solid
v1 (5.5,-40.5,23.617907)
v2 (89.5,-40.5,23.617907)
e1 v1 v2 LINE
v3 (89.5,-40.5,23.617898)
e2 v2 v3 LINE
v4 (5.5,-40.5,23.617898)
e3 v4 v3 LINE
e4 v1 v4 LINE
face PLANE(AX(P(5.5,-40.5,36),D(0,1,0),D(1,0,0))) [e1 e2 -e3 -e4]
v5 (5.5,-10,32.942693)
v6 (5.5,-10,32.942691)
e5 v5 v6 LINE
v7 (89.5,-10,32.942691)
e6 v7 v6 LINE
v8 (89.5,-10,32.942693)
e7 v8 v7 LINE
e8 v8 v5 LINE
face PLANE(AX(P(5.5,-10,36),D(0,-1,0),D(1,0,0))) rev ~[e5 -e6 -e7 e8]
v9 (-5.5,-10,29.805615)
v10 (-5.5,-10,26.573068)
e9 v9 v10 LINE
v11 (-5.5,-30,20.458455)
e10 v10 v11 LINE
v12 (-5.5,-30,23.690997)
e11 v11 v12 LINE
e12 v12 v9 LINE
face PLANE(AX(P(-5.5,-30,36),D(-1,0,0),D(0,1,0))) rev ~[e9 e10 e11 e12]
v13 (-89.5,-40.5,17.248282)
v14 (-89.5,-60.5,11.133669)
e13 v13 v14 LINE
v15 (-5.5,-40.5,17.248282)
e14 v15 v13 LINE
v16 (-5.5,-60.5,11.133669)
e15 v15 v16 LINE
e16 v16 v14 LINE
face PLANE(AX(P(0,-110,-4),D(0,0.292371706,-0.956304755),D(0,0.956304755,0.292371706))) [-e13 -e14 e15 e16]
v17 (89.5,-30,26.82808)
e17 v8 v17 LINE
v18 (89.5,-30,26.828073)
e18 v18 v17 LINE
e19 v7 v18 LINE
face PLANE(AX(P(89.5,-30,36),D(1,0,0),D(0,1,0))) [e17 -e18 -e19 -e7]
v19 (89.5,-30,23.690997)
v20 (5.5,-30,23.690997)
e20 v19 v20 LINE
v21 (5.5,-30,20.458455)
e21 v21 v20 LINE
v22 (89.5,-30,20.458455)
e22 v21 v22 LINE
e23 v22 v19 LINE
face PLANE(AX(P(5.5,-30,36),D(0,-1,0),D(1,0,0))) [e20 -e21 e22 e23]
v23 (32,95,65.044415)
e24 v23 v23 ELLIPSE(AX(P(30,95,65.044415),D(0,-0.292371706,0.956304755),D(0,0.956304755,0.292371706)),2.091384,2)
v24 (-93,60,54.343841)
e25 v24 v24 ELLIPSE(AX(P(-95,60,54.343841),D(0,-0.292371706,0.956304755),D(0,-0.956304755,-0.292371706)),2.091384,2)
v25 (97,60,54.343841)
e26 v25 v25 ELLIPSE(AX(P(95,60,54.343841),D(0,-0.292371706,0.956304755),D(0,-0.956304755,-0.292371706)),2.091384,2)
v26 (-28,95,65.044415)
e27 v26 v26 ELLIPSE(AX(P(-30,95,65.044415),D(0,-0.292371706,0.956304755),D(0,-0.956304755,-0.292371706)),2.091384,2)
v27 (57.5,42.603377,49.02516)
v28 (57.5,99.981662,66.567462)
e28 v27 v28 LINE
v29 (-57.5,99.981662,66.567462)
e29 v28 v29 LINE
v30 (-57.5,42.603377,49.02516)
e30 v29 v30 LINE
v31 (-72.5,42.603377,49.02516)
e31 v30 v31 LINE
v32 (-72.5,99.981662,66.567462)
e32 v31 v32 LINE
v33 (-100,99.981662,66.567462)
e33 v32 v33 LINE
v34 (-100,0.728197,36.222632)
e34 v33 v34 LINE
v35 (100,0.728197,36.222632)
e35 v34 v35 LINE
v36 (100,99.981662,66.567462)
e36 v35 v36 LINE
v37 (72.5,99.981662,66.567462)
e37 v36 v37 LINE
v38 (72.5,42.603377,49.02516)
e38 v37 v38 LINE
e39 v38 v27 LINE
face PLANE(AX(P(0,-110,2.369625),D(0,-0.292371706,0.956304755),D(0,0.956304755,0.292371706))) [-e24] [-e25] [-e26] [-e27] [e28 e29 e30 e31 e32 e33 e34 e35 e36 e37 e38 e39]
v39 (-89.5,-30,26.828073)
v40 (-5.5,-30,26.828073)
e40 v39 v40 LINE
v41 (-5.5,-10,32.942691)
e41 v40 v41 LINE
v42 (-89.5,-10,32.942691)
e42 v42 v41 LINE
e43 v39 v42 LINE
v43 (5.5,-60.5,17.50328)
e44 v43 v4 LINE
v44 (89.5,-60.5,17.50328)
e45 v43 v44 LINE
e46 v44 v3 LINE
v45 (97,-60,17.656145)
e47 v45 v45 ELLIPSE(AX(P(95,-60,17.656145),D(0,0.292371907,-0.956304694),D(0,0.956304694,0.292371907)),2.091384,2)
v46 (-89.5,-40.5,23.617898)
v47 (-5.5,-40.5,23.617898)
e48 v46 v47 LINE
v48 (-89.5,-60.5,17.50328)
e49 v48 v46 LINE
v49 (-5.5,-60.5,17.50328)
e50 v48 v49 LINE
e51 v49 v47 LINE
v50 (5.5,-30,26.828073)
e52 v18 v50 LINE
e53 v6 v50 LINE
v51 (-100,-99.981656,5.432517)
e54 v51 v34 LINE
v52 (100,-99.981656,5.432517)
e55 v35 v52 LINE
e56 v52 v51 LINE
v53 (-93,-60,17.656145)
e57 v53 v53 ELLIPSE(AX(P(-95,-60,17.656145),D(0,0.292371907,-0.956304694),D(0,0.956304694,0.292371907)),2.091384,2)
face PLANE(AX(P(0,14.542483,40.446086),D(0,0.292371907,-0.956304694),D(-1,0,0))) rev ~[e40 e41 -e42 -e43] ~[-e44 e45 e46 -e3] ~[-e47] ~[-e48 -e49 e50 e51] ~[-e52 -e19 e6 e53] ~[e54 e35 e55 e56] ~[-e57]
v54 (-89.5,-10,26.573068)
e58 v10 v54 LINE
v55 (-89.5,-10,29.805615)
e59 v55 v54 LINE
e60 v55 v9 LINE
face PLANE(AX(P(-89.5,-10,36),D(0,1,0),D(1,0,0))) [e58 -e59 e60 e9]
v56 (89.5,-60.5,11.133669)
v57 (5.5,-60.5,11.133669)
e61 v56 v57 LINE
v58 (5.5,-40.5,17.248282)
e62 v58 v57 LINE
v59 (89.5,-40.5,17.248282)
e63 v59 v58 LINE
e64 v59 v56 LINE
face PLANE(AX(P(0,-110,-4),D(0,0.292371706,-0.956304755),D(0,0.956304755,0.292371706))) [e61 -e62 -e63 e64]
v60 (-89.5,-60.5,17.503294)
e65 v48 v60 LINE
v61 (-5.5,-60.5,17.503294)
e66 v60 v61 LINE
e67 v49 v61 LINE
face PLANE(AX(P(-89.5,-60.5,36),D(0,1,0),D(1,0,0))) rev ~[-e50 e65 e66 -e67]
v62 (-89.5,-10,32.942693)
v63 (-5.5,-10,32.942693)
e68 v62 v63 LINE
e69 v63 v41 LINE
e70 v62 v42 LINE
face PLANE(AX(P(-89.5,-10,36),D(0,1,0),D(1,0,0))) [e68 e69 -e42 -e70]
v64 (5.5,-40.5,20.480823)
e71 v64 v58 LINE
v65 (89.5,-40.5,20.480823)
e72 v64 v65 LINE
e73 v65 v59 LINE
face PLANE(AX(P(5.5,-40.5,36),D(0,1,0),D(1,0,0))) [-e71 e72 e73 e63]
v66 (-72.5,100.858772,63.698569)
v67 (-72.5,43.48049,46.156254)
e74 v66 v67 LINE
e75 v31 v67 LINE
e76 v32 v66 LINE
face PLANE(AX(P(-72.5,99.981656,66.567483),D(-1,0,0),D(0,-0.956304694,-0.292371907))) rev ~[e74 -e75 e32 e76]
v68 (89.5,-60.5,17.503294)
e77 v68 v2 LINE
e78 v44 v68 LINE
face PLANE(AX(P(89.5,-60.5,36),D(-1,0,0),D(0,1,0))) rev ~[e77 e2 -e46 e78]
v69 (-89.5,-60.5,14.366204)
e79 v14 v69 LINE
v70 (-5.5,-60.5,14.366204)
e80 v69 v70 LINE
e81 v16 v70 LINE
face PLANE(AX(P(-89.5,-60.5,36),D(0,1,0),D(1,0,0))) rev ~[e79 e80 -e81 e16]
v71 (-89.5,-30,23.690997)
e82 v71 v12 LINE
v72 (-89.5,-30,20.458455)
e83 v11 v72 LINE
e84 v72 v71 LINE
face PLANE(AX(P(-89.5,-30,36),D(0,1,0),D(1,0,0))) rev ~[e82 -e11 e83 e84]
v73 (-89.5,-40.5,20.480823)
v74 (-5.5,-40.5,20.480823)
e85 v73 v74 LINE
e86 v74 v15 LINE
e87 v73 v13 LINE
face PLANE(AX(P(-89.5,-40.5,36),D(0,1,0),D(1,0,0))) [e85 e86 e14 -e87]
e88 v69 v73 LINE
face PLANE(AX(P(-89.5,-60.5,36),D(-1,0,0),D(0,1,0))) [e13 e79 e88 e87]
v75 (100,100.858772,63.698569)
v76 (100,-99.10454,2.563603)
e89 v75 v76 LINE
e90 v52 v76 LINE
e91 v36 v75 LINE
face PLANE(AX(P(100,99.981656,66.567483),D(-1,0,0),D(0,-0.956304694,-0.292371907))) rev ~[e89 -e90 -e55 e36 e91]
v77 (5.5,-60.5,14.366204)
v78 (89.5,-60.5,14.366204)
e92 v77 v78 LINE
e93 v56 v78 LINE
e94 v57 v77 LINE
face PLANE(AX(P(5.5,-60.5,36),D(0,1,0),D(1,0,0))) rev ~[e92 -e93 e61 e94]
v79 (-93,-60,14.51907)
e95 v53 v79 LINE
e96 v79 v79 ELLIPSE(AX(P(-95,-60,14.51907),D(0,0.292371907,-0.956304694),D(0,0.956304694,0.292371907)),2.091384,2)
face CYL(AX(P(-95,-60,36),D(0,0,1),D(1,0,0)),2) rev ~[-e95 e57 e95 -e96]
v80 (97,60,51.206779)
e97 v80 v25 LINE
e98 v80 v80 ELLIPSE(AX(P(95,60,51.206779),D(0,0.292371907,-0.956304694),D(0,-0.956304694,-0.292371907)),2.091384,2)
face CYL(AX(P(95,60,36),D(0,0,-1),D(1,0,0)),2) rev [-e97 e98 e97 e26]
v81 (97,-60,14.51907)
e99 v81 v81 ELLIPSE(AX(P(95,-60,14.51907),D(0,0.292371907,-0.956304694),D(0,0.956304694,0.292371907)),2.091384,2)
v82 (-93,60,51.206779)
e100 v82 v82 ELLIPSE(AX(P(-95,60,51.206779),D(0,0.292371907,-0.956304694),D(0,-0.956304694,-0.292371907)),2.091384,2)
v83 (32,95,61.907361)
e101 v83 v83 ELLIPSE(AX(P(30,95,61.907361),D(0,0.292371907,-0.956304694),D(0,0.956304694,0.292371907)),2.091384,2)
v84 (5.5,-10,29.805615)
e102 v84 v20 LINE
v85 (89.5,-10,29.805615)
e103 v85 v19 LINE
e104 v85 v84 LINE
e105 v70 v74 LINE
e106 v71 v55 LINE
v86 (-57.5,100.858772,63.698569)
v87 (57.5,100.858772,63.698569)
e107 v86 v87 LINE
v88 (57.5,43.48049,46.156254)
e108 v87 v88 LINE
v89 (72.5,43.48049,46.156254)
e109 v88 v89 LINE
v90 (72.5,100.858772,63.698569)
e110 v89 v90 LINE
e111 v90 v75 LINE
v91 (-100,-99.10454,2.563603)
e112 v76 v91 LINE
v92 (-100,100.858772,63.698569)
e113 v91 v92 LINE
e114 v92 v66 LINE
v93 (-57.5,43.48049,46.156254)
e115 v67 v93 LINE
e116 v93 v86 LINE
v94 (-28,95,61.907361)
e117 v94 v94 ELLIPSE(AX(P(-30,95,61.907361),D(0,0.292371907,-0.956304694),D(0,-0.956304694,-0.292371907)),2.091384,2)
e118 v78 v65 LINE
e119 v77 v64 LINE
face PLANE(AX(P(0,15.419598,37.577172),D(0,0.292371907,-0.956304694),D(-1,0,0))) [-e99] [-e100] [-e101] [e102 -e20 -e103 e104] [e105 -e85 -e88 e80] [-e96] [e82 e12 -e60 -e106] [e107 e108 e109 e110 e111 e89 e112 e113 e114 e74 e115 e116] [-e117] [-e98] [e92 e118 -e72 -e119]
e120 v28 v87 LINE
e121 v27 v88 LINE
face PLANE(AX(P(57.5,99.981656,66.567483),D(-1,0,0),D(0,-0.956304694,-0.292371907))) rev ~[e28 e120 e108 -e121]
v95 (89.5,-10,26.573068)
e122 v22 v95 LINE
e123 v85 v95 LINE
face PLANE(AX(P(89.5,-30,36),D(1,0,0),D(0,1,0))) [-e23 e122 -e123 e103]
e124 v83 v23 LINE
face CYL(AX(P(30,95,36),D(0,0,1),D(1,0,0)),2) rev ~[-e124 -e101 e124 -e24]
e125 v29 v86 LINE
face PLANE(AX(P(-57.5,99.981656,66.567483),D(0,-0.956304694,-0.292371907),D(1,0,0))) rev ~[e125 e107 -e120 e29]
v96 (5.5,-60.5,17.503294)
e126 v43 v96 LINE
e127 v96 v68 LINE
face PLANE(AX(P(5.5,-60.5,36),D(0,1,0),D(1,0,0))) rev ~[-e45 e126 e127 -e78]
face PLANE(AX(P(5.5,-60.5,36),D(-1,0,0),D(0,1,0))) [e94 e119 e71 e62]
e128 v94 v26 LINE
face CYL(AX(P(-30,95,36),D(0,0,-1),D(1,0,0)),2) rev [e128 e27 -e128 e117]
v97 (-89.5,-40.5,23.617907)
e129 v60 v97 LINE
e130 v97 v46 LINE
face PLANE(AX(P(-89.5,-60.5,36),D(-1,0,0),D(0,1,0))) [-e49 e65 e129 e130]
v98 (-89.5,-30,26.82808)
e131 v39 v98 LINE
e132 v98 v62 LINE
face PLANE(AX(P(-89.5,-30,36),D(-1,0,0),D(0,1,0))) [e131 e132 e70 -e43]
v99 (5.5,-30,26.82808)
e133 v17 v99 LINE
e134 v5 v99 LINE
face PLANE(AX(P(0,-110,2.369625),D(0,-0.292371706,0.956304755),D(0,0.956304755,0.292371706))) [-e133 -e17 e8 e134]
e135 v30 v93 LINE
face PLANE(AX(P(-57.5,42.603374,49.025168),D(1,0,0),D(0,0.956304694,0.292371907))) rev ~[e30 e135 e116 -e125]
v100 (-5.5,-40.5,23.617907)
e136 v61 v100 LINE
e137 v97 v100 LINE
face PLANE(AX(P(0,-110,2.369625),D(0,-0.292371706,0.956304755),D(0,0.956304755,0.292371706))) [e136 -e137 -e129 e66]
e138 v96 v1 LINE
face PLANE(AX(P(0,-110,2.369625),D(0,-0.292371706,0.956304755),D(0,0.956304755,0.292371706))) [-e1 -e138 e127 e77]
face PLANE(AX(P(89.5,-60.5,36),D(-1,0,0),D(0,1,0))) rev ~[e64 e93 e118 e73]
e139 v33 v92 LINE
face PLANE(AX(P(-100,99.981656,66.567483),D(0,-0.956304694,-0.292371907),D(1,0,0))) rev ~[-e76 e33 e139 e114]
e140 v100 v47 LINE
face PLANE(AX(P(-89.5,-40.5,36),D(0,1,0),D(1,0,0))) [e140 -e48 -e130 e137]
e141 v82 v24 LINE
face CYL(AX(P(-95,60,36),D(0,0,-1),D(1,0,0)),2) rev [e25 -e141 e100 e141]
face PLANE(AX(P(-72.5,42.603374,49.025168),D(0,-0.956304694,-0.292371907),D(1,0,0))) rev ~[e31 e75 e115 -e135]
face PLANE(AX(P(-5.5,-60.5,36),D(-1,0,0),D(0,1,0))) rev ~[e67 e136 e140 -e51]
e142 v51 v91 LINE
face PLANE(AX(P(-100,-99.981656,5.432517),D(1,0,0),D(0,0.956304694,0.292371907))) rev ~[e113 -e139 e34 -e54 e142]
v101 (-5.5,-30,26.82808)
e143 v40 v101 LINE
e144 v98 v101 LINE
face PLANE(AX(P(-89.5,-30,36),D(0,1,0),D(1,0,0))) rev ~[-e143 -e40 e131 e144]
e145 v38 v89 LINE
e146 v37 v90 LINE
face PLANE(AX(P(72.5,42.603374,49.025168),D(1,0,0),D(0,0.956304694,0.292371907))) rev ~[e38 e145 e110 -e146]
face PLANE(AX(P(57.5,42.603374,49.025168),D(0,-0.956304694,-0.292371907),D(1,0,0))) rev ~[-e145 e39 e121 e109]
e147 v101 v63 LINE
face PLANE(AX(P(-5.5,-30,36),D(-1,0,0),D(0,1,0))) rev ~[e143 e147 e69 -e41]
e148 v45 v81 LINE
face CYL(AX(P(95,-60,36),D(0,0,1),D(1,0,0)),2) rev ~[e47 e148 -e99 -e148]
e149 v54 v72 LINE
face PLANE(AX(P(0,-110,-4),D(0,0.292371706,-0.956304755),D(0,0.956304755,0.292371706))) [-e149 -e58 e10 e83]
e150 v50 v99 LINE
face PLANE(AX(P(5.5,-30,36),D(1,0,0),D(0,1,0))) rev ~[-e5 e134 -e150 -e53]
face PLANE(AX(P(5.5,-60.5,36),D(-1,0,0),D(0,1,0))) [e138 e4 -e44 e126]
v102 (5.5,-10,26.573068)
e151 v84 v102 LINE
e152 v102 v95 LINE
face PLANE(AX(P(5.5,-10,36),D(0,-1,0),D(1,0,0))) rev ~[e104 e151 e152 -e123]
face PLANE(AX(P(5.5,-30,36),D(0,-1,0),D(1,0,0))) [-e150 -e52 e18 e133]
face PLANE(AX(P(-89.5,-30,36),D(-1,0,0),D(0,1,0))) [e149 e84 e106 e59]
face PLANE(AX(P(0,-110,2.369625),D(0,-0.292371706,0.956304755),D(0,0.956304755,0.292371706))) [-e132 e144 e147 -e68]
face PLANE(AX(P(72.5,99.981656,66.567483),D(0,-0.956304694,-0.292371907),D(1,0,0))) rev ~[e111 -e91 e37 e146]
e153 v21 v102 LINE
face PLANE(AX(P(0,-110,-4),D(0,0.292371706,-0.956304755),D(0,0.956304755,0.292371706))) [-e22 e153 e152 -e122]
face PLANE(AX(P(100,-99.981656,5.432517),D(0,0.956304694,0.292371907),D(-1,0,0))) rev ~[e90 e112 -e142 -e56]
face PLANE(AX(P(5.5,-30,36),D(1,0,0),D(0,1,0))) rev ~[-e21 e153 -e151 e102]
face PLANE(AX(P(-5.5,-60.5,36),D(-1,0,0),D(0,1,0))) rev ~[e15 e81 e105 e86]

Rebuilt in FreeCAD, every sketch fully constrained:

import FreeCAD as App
import Part
import Sketcher
Q = App.Units.Quantity

doc = App.newDocument("Part")
body = doc.addObject("PartDesign::Body", "Body")

sketch1 = body.newObject("Sketcher::SketchObject", "Sketch")
sketch1.Placement = App.Placement(App.Vector(0, 0, 0), App.Rotation(App.Vector(1, 0, 0), App.Vector(0, 0.956304694, 0.292371907), App.Vector(0, -0.292371907, 0.956304694), "ZXY"))
sketch1.addGeometry([
    Part.LineSegment(App.Vector(-72, 105, 0), App.Vector(-100, 105, 0)),
    Part.LineSegment(App.Vector(-100, 105, 0), App.Vector(-100, -105, 0)),
    Part.LineSegment(App.Vector(-100, -105, 0), App.Vector(100, -105, 0)),
    Part.LineSegment(App.Vector(100, -105, 0), App.Vector(100, 105, 0)),
    Part.LineSegment(App.Vector(100, 105, 0), App.Vector(72, 105, 0)),
    Part.LineSegment(App.Vector(72, 105, 0), App.Vector(72, 45, 0)),
    Part.LineSegment(App.Vector(72, 45, 0), App.Vector(58, 45, 0)),
    Part.LineSegment(App.Vector(58, 45, 0), App.Vector(58, 105, 0)),
    Part.LineSegment(App.Vector(58, 105, 0), App.Vector(-58, 105, 0)),
    Part.LineSegment(App.Vector(-58, 105, 0), App.Vector(-58, 45, 0)),
    Part.LineSegment(App.Vector(-58, 45, 0), App.Vector(-72, 45, 0)),
    Part.LineSegment(App.Vector(-72, 45, 0), App.Vector(-72, 105, 0)),
], False)
sketch1.addConstraint([
    Sketcher.Constraint("Coincident", 0, 2, 1, 1),
    Sketcher.Constraint("Coincident", 1, 2, 2, 1),
    Sketcher.Constraint("Coincident", 2, 2, 3, 1),
    Sketcher.Constraint("Coincident", 3, 2, 4, 1),
    Sketcher.Constraint("Coincident", 4, 2, 5, 1),
    Sketcher.Constraint("Coincident", 5, 2, 6, 1),
    Sketcher.Constraint("Coincident", 6, 2, 7, 1),
    Sketcher.Constraint("Coincident", 7, 2, 8, 1),
    Sketcher.Constraint("Coincident", 8, 2, 9, 1),
    Sketcher.Constraint("Coincident", 9, 2, 10, 1),
    Sketcher.Constraint("Coincident", 10, 2, 11, 1),
    Sketcher.Constraint("Coincident", 11, 2, 0, 1),
    Sketcher.Constraint("Horizontal", 0),
    Sketcher.Constraint("Vertical", 1),
    Sketcher.Constraint("Horizontal", 2),
    Sketcher.Constraint("Vertical", 3),
    Sketcher.Constraint("Horizontal", 4),
    Sketcher.Constraint("Vertical", 5),
    Sketcher.Constraint("Horizontal", 6),
    Sketcher.Constraint("Vertical", 7),
    Sketcher.Constraint("Horizontal", 8),
    Sketcher.Constraint("Vertical", 9),
    Sketcher.Constraint("Horizontal", 10),
    Sketcher.Constraint("Vertical", 11),
    Sketcher.Constraint("Symmetric", 0, 2, 2, 2, -1, 1),
    Sketcher.Constraint("Symmetric", 6, 2, 9, 2, -2),
    Sketcher.Constraint("Symmetric", 4, 2, 11, 2, -2),
    Sketcher.Constraint("Horizontal", 4, 2, 7, 2),
    Sketcher.Constraint("DistanceX", 2, 1, 2, 2, 200.0),
    Sketcher.Constraint("DistanceX", 6, 2, 6, 1, 15.0),
    Sketcher.Constraint("DistanceX", 8, 2, 8, 1, 115.0),
    Sketcher.Constraint("DistanceY", 5, 2, 5, 1, 60.0),
    Sketcher.Constraint("DistanceY", 1, 2, 1, 1, 209.1),
])
pad1 = body.newObject("PartDesign::Pad", "Pad")
pad1.Profile = sketch1
pad1.Length = 3
pad1.Reversed = True

sketch2 = body.newObject("Sketcher::SketchObject", "Sketch001")
sketch2.AttachmentSupport = (doc.getObject("XY_Plane"), [""])
sketch2.MapMode = "FlatFace"
sketch2.addGeometry([
    Part.LineSegment(App.Vector(-90, -40, 0), App.Vector(-90, -60, 0)),
    Part.LineSegment(App.Vector(-90, -60, 0), App.Vector(-6, -60, 0)),
    Part.LineSegment(App.Vector(-6, -60, 0), App.Vector(-6, -40, 0)),
    Part.LineSegment(App.Vector(-6, -40, 0), App.Vector(-90, -40, 0)),
    Part.LineSegment(App.Vector(6, -40, 0), App.Vector(6, -60, 0)),
    Part.LineSegment(App.Vector(6, -60, 0), App.Vector(90, -60, 0)),
    Part.LineSegment(App.Vector(90, -60, 0), App.Vector(90, -40, 0)),
    Part.LineSegment(App.Vector(90, -40, 0), App.Vector(6, -40, 0)),
    Part.LineSegment(App.Vector(-90, -10, 0), App.Vector(-90, -30, 0)),
    Part.LineSegment(App.Vector(-90, -30, 0), App.Vector(-6, -30, 0)),
    Part.LineSegment(App.Vector(-6, -30, 0), App.Vector(-6, -10, 0)),
    Part.LineSegment(App.Vector(-6, -10, 0), App.Vector(-90, -10, 0)),
    Part.LineSegment(App.Vector(6, -10, 0), App.Vector(6, -30, 0)),
    Part.LineSegment(App.Vector(6, -30, 0), App.Vector(90, -30, 0)),
    Part.LineSegment(App.Vector(90, -30, 0), App.Vector(90, -10, 0)),
    Part.LineSegment(App.Vector(90, -10, 0), App.Vector(6, -10, 0)),
], False)
sketch2.addConstraint([
    Sketcher.Constraint("Coincident", 0, 2, 1, 1),
    Sketcher.Constraint("Coincident", 1, 2, 2, 1),
    Sketcher.Constraint("Coincident", 2, 2, 3, 1),
    Sketcher.Constraint("Coincident", 3, 2, 0, 1),
    Sketcher.Constraint("Coincident", 4, 2, 5, 1),
    Sketcher.Constraint("Coincident", 5, 2, 6, 1),
    Sketcher.Constraint("Coincident", 6, 2, 7, 1),
    Sketcher.Constraint("Coincident", 7, 2, 4, 1),
    Sketcher.Constraint("Coincident", 8, 2, 9, 1),
    Sketcher.Constraint("Coincident", 9, 2, 10, 1),
    Sketcher.Constraint("Coincident", 10, 2, 11, 1),
    Sketcher.Constraint("Coincident", 11, 2, 8, 1),
    Sketcher.Constraint("Coincident", 12, 2, 13, 1),
    Sketcher.Constraint("Coincident", 13, 2, 14, 1),
    Sketcher.Constraint("Coincident", 14, 2, 15, 1),
    Sketcher.Constraint("Coincident", 15, 2, 12, 1),
    Sketcher.Constraint("Vertical", 0),
    Sketcher.Constraint("Horizontal", 1),
    Sketcher.Constraint("Vertical", 2),
    Sketcher.Constraint("Horizontal", 3),
    Sketcher.Constraint("Vertical", 4),
    Sketcher.Constraint("Horizontal", 5),
    Sketcher.Constraint("Vertical", 6),
    Sketcher.Constraint("Horizontal", 7),
    Sketcher.Constraint("Vertical", 8),
    Sketcher.Constraint("Horizontal", 9),
    Sketcher.Constraint("Vertical", 10),
    Sketcher.Constraint("Horizontal", 11),
    Sketcher.Constraint("Vertical", 12),
    Sketcher.Constraint("Horizontal", 13),
    Sketcher.Constraint("Vertical", 14),
    Sketcher.Constraint("Horizontal", 15),
    Sketcher.Constraint("Symmetric", 1, 2, 4, 2, -2),
    Sketcher.Constraint("Symmetric", 3, 2, 6, 2, -2),
    Sketcher.Constraint("Symmetric", 9, 2, 12, 2, -2),
    Sketcher.Constraint("Symmetric", 11, 2, 14, 2, -2),
    Sketcher.Constraint("Vertical", 3, 2, 8, 2),
    Sketcher.Constraint("Vertical", 2, 2, 9, 2),
    Sketcher.Constraint("Equal", 6, 8),
    Sketcher.Constraint("DistanceX", 1, 1, 1, 2, 84.0),
    Sketcher.Constraint("DistanceY", 0, 2, 0, 1, 20.0),
    Sketcher.Constraint("DistanceY", 8, 2, -1, 1, 30.0),
    Sketcher.Constraint("DistanceX", 1, 2, 4, 2, 11.0),
    Sketcher.Constraint("DistanceY", 0, 2, -1, 1, 60.5),
])
pad2 = body.newObject("PartDesign::Pad", "Pad001")
pad2.Profile = sketch2
pad2.Length = 60
pad2.Midplane = True

sketch3 = body.newObject("Sketcher::SketchObject", "Sketch002")
sketch3.AttachmentSupport = (doc.getObject("XY_Plane"), [""])
sketch3.MapMode = "FlatFace"
sketch3.addGeometry([
    Part.Circle(App.Vector(-95, 60, 0), App.Vector(0, 0, 1), 2),
    Part.Circle(App.Vector(-95, -60, 0), App.Vector(0, 0, 1), 2),
    Part.Circle(App.Vector(95, -60, 0), App.Vector(0, 0, 1), 2),
    Part.Circle(App.Vector(95, 60, 0), App.Vector(0, 0, 1), 2),
    Part.Circle(App.Vector(-30, 95, 0), App.Vector(0, 0, 1), 2),
    Part.Circle(App.Vector(30, 95, 0), App.Vector(0, 0, 1), 2),
], False)
sketch3.addConstraint([
    Sketcher.Constraint("Equal", 0, 1),
    Sketcher.Constraint("Equal", 1, 2),
    Sketcher.Constraint("Equal", 2, 3),
    Sketcher.Constraint("Equal", 3, 4),
    Sketcher.Constraint("Equal", 4, 5),
    Sketcher.Constraint("Symmetric", 0, 3, 2, 3, -1, 1),
    Sketcher.Constraint("Symmetric", 1, 3, 3, 3, -1, 1),
    Sketcher.Constraint("Symmetric", 1, 3, 2, 3, -2),
    Sketcher.Constraint("Symmetric", 4, 3, 5, 3, -2),
    Sketcher.Constraint("Diameter", 0, 4.0),
    Sketcher.Constraint("DistanceX", 0, 3, -1, 1, 95.0),
    Sketcher.Constraint("DistanceY", -1, 1, 0, 3, 60.0),
    Sketcher.Constraint("DistanceX", 4, 3, -1, 1, 30.0),
    Sketcher.Constraint("DistanceY", -1, 1, 4, 3, 95.0),
])
pocket1 = body.newObject("PartDesign::Pocket", "Pocket")
pocket1.Profile = sketch3
pocket1.Length = 500
pocket1.Midplane = True

sketch4 = body.newObject("Sketcher::SketchObject", "Sketch003")
sketch4.AttachmentSupport = (doc.getObject("YZ_Plane"), [""])
sketch4.MapMode = "FlatFace"
sketch4.addGeometry([
    Part.LineSegment(App.Vector(-110, -34, 0), App.Vector(130, 40, 0)),
    Part.LineSegment(App.Vector(130, 40, 0), App.Vector(130, 90, 0)),
    Part.LineSegment(App.Vector(130, 90, 0), App.Vector(-110, 16, 0)),
    Part.LineSegment(App.Vector(-110, 16, 0), App.Vector(-110, -34, 0)),
    Part.LineSegment(App.Vector(130, 33, 0), App.Vector(-110, -40, 0)),
    Part.LineSegment(App.Vector(-110, -40, 0), App.Vector(-110, -90, 0)),
    Part.LineSegment(App.Vector(-110, -90, 0), App.Vector(130, -17, 0)),
    Part.LineSegment(App.Vector(130, -17, 0), App.Vector(130, 33, 0)),
], False)
sketch4.addConstraint([
    Sketcher.Constraint("Coincident", 0, 2, 1, 1),
    Sketcher.Constraint("Coincident", 1, 2, 2, 1),
    Sketcher.Constraint("Coincident", 2, 2, 3, 1),
    Sketcher.Constraint("Coincident", 3, 2, 0, 1),
    Sketcher.Constraint("Coincident", 4, 2, 5, 1),
    Sketcher.Constraint("Coincident", 5, 2, 6, 1),
    Sketcher.Constraint("Coincident", 6, 2, 7, 1),
    Sketcher.Constraint("Coincident", 7, 2, 4, 1),
    Sketcher.Constraint("Vertical", 1),
    Sketcher.Constraint("Vertical", 3),
    Sketcher.Constraint("Vertical", 5),
    Sketcher.Constraint("Vertical", 7),
    Sketcher.Constraint("Parallel", 0, 2),
    Sketcher.Constraint("Parallel", 2, 4),
    Sketcher.Constraint("Parallel", 4, 6),
    Sketcher.Constraint("Vertical", 3, 2, 4, 2),
    Sketcher.Constraint("Vertical", 1, 2, 6, 2),
    Sketcher.Constraint("Equal", 3, 5),
    Sketcher.Constraint("DistanceY", 1, 1, 1, 2, 50.0),
    Sketcher.Constraint("Angle", 0, Q("17 deg")),
    Sketcher.Constraint("DistanceX", -1, 1, 0, 2, 130.0),
    Sketcher.Constraint("DistanceX", 2, 2, -1, 1, 110.0),
    Sketcher.Constraint("DistanceY", 4, 2, -1, 1, 40.0),
    Sketcher.Constraint("DistanceY", -1, 1, 0, 2, 39.744989),
])
pocket2 = body.newObject("PartDesign::Pocket", "Pocket001")
pocket2.Profile = sketch4
pocket2.Length = 500
pocket2.Midplane = True
body2 = doc.addObject("PartDesign::Body", "Body001")
doc.recompute()

body.Placement = App.Placement(App.Vector(0, 0, 36), App.Rotation(App.Vector(0, 0, 1), 0))
boolean = body2.newObject("PartDesign::Boolean", "Boolean")
boolean.Type = "Fuse"
boolean.addObjects([body])

doc.recompute()
